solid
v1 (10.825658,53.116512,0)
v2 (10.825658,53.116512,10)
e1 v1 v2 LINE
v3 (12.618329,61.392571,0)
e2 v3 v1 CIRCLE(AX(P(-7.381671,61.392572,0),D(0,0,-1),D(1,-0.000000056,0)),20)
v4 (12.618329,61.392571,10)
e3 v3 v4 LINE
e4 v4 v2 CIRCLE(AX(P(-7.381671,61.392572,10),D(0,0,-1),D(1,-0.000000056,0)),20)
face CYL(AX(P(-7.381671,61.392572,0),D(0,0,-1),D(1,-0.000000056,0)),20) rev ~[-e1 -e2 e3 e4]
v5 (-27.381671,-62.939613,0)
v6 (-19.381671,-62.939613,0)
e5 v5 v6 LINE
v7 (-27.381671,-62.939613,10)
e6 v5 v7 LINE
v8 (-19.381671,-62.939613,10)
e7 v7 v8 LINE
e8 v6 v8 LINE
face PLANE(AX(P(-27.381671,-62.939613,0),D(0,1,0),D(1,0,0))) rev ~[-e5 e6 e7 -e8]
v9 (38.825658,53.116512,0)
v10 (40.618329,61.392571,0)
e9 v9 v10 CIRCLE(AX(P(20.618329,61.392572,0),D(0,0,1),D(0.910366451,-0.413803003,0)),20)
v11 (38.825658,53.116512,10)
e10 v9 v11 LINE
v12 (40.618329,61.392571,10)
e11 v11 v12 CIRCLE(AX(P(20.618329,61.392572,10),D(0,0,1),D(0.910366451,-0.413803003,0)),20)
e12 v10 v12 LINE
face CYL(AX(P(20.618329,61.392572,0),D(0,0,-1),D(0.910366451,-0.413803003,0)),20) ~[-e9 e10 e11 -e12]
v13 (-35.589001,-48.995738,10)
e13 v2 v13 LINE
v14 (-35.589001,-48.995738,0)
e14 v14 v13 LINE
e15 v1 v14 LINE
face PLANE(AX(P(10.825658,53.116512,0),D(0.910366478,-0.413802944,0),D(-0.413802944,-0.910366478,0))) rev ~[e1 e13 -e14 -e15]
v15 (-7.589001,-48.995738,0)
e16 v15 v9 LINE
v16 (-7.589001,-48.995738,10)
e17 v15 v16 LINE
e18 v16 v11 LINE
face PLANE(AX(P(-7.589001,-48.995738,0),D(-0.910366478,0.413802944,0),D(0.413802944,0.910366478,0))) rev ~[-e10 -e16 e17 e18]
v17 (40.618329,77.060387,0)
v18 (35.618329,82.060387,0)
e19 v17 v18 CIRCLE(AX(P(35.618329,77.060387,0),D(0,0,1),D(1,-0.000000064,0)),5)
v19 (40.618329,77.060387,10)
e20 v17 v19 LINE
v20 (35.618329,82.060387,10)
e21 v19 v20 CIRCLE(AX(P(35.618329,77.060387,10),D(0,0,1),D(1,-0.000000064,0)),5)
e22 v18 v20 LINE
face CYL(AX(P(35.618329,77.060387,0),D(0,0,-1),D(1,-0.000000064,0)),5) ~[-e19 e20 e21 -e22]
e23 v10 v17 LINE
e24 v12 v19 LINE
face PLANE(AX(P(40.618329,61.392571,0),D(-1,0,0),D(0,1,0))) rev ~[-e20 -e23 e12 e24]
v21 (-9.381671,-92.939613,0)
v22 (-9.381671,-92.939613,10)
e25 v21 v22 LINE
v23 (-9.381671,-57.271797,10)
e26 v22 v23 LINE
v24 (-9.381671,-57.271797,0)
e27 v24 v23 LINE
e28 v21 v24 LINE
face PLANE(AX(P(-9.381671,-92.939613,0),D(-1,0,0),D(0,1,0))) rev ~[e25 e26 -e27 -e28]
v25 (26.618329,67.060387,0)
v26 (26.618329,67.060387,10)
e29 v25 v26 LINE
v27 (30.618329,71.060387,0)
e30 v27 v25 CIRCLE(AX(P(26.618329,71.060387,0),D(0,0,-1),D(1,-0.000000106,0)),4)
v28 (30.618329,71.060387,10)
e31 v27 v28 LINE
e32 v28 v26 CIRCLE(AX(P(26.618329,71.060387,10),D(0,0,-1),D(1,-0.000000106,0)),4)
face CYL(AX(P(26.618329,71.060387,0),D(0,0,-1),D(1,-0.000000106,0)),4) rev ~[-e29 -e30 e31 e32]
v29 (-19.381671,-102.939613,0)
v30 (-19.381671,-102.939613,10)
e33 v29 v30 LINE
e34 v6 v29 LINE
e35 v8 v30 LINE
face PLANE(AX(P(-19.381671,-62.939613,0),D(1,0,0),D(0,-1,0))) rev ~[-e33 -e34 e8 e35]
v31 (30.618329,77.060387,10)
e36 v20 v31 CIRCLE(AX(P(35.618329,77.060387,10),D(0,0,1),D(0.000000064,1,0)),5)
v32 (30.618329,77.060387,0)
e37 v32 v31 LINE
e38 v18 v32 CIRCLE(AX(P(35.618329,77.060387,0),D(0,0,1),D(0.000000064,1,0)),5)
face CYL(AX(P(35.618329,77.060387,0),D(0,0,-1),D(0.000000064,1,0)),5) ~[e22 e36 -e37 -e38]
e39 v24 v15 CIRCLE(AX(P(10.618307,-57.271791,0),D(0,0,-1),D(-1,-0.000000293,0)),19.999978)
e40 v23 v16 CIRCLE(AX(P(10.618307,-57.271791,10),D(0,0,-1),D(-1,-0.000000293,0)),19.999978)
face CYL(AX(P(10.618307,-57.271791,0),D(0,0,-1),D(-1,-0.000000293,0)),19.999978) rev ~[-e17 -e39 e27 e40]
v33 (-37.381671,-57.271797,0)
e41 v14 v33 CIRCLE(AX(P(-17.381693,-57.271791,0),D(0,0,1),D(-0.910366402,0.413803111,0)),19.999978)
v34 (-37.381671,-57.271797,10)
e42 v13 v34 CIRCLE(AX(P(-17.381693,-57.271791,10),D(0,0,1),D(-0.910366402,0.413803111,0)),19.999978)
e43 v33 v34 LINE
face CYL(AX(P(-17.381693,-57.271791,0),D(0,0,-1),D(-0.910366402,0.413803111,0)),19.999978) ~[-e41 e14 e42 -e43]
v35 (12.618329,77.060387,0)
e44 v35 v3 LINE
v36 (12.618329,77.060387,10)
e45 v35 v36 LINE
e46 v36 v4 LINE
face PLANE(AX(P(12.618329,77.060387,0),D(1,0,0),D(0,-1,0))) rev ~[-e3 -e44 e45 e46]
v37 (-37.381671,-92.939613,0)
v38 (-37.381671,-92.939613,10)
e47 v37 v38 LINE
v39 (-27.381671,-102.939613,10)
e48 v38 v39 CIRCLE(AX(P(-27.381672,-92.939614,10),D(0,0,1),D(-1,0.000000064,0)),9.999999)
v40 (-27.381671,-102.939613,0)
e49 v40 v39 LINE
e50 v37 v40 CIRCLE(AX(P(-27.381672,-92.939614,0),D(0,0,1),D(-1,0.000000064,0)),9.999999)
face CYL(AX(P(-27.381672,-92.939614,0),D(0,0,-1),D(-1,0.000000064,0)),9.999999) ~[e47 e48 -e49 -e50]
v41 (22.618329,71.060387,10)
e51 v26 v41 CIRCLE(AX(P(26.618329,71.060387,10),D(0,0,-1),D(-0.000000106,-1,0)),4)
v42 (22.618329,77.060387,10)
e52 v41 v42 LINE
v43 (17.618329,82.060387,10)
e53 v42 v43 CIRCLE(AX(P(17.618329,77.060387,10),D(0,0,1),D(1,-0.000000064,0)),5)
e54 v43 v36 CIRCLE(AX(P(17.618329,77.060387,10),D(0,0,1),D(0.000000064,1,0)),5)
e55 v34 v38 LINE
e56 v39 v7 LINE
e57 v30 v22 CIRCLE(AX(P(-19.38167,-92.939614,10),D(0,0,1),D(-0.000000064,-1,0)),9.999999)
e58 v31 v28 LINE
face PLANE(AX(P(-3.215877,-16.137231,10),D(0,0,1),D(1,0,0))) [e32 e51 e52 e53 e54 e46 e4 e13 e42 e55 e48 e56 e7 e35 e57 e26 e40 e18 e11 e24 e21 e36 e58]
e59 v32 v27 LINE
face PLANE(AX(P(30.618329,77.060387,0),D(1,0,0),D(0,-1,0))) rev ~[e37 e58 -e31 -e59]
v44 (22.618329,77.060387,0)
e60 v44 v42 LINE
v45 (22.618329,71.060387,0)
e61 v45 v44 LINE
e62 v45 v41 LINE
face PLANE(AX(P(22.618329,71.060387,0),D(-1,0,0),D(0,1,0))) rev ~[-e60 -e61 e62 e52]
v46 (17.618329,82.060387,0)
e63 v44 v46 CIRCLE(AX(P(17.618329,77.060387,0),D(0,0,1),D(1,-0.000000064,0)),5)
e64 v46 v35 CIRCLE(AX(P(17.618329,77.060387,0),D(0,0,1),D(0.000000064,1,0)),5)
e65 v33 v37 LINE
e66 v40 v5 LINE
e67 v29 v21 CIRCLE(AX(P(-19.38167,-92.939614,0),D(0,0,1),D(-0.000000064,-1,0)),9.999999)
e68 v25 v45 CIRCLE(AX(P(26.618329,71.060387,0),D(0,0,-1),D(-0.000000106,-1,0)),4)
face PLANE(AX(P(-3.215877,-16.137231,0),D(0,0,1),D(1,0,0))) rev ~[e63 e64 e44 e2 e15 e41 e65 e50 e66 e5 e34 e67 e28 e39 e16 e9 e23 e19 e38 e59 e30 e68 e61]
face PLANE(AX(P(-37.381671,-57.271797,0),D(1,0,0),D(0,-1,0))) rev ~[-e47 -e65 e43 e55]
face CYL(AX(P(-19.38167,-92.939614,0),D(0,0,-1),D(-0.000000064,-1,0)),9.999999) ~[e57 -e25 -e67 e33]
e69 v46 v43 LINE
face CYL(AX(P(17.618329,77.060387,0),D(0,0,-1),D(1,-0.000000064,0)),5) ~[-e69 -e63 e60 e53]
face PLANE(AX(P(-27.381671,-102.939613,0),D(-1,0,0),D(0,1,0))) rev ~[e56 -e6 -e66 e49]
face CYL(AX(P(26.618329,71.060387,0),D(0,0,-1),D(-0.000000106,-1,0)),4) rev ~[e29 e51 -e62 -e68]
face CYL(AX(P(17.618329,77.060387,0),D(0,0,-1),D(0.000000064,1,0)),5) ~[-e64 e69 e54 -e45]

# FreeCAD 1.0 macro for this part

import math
import FreeCAD as App
import Part
import Sketcher

doc = App.newDocument("Part")
body = doc.addObject("PartDesign::Body", "Body")

sketch1 = doc.addObject("Sketcher::SketchObject", "Sketch")
body.addObject(sketch1)
sketch1.AttachmentSupport = (doc.XY_Plane, [""])
sketch1.MapMode = "FlatFace"
sketch1.addGeometry([
    Part.LineSegment(App.Vector(12.6, 77.1, 0), App.Vector(12.6, 61.4, 0)),
    Part.ArcOfCircle(Part.Circle(App.Vector(-7.4, 61.4, 0), App.Vector(0, 0, 1), 20), math.radians(-24), math.radians(0)),
    Part.LineSegment(App.Vector(10.8, 53.1, 0), App.Vector(-35.6, -49, 0)),
    Part.ArcOfCircle(Part.Circle(App.Vector(-17.4, -57.3, 0), App.Vector(0, 0, 1), 20), math.radians(156), math.radians(180)),
    Part.LineSegment(App.Vector(-37.4, -57.3, 0), App.Vector(-37.4, -92.9, 0)),
    Part.ArcOfCircle(Part.Circle(App.Vector(-27.4, -92.9, 0), App.Vector(0, 0, 1), 10), math.radians(180), math.radians(270)),
    Part.LineSegment(App.Vector(-27.4, -102.9, 0), App.Vector(-27.4, -62.9, 0)),
    Part.LineSegment(App.Vector(-27.4, -62.9, 0), App.Vector(-19.4, -62.9, 0)),
    Part.LineSegment(App.Vector(-19.4, -62.9, 0), App.Vector(-19.4, -102.9, 0)),
    Part.ArcOfCircle(Part.Circle(App.Vector(-19.4, -92.9, 0), App.Vector(0, 0, 1), 10), math.radians(-90), math.radians(0)),
    Part.LineSegment(App.Vector(-9.4, -92.9, 0), App.Vector(-9.4, -57.3, 0)),
    Part.ArcOfCircle(Part.Circle(App.Vector(10.6, -57.3, 0), App.Vector(0, 0, 1), 20), math.radians(156), math.radians(180)),
    Part.LineSegment(App.Vector(-7.6, -49, 0), App.Vector(38.8, 53.1, 0)),
    Part.ArcOfCircle(Part.Circle(App.Vector(20.6, 61.4, 0), App.Vector(0, 0, 1), 20), math.radians(-24), math.radians(0)),
    Part.LineSegment(App.Vector(40.6, 61.4, 0), App.Vector(40.6, 77.1, 0)),
    Part.ArcOfCircle(Part.Circle(App.Vector(35.6, 77.1, 0), App.Vector(0, 0, 1), 5), math.radians(0), math.radians(90)),
    Part.ArcOfCircle(Part.Circle(App.Vector(35.6, 77.1, 0), App.Vector(0, 0, 1), 5), math.radians(90), math.radians(180)),
    Part.LineSegment(App.Vector(30.6, 77.1, 0), App.Vector(30.6, 71.1, 0)),
    Part.ArcOfCircle(Part.Circle(App.Vector(26.6, 71.1, 0), App.Vector(0, 0, 1), 4), math.radians(-90), math.radians(0)),
    Part.ArcOfCircle(Part.Circle(App.Vector(26.6, 71.1, 0), App.Vector(0, 0, 1), 4), math.radians(-180), math.radians(-90)),
    Part.LineSegment(App.Vector(22.6, 71.1, 0), App.Vector(22.6, 77.1, 0)),
    Part.ArcOfCircle(Part.Circle(App.Vector(17.6, 77.1, 0), App.Vector(0, 0, 1), 5), math.radians(0), math.radians(90)),
    Part.ArcOfCircle(Part.Circle(App.Vector(17.6, 77.1, 0), App.Vector(0, 0, 1), 5), math.radians(90), math.radians(180)),
], False)
sketch1.addConstraint([
    Sketcher.Constraint("Tangent", 0, 2, 1, 2),
    Sketcher.Constraint("Tangent", 1, 1, 2, 1),
    Sketcher.Constraint("Tangent", 2, 2, 3, 1),
    Sketcher.Constraint("Tangent", 3, 2, 4, 1),
    Sketcher.Constraint("Tangent", 4, 2, 5, 1),
    Sketcher.Constraint("Coincident", 5, 2, 6, 1),
    Sketcher.Constraint("Coincident", 6, 2, 7, 1),
    Sketcher.Constraint("Coincident", 7, 2, 8, 1),
    Sketcher.Constraint("Coincident", 8, 2, 9, 1),
    Sketcher.Constraint("Tangent", 9, 2, 10, 1),
    Sketcher.Constraint("Tangent", 10, 2, 11, 2),
    Sketcher.Constraint("Tangent", 11, 1, 12, 1),
    Sketcher.Constraint("Tangent", 12, 2, 13, 1),
    Sketcher.Constraint("Tangent", 13, 2, 14, 1),
    Sketcher.Constraint("Tangent", 14, 2, 15, 1),
    Sketcher.Constraint("Tangent", 15, 2, 16, 1),
    Sketcher.Constraint("Tangent", 16, 2, 17, 1),
    Sketcher.Constraint("Tangent", 17, 2, 18, 2),
    Sketcher.Constraint("Tangent", 18, 1, 19, 2),
    Sketcher.Constraint("Tangent", 19, 1, 20, 1),
    Sketcher.Constraint("Tangent", 20, 2, 21, 1),
    Sketcher.Constraint("Tangent", 21, 2, 22, 1),
    Sketcher.Constraint("Tangent", 22, 2, 0, 1),
    Sketcher.Constraint("Vertical", 0),
    Sketcher.Constraint("Vertical", 4),
    Sketcher.Constraint("Vertical", 6),
    Sketcher.Constraint("Horizontal", 7),
    Sketcher.Constraint("Vertical", 8),
    Sketcher.Constraint("Vertical", 10),
    Sketcher.Constraint("Vertical", 14),
    Sketcher.Constraint("Vertical", 17),
    Sketcher.Constraint("Vertical", 20),
    Sketcher.Constraint("Equal", 5, 9),
    Sketcher.Constraint("Equal", 3, 11),
    Sketcher.Constraint("Equal", 1, 13),
    Sketcher.Constraint("Equal", 15, 16),
    Sketcher.Constraint("Equal", 18, 19),
    Sketcher.Constraint("Equal", 16, 21),
    Sketcher.Constraint("Equal", 21, 22),
    Sketcher.Constraint("Parallel", 2, 12),
    Sketcher.Constraint("Horizontal", 5, 3, 9, 3),
    Sketcher.Constraint("Horizontal", 3, 3, 11, 3),
    Sketcher.Constraint("Horizontal", 1, 3, 13, 3),
    Sketcher.Constraint("Horizontal", 16, 3, 21, 3),
    Sketcher.Constraint("Vertical", 9, 3, 7, 2),
    Sketcher.Constraint("Vertical", 16, 3, 15, 2),
    Sketcher.Constraint("Vertical", 19, 3, 18, 1),
    Sketcher.Constraint("Vertical", 22, 3, 21, 2),
    Sketcher.Constraint("Radius", 1, 20.0),
    Sketcher.Constraint("Radius", 5, 9.999999),
    Sketcher.Constraint("Radius", 15, 5.0),
    Sketcher.Constraint("Radius", 18, 4.0),
    Sketcher.Constraint("DistanceX", 7, 1, 7, 2, 8.0),
    Sketcher.Constraint("DistanceY", 6, 1, 6, 2, 40.0),
    Sketcher.Constraint("DistanceY", 17, 2, 17, 1, 6.0),
    Sketcher.Constraint("DistanceX", 5, 3, 1, 3, 20.000001),
    Sketcher.Constraint("DistanceY", 9, 3, 15, 3, 170.000001),
    Sketcher.Constraint("Radius", 3, 19.999978),
    Sketcher.Constraint("DistanceX", 2, 2, -1, 1, 35.589001),
    Sketcher.Constraint("Distance", 2, 112.166092),
    Sketcher.Constraint("DistanceY", 0, 2, 0, 1, 15.667816),
    Sketcher.Constraint("DistanceY", 3, 3, -1, 1, 57.271791),
])
pad1 = doc.addObject("PartDesign::Pad", "Pad")
body.addObject(pad1)
pad1.Profile = sketch1
pad1.Length = 10

doc.recompute()
